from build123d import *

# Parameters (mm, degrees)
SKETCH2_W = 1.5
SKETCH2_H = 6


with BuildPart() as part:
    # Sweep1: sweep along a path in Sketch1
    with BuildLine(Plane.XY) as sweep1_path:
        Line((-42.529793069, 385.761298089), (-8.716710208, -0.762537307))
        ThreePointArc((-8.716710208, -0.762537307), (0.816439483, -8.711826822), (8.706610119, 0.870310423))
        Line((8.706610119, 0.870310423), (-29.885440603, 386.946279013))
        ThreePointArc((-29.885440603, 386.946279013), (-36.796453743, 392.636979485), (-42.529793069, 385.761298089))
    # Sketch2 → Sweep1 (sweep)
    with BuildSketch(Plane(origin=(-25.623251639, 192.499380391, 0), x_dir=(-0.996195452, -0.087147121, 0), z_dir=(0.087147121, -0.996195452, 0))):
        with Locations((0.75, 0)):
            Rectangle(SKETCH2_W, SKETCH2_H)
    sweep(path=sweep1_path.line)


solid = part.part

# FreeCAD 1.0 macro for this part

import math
import FreeCAD as App
import Part
import Sketcher


def add_polygon(sketch, points):
    """Adds a closed chain of lines whose ends are joined by coincident constraints."""
    first, n = sketch.GeometryCount, len(points)
    for a, b in zip(points, points[1:] + points[:1]):
        sketch.addGeometry(Part.LineSegment(App.Vector(*a, 0), App.Vector(*b, 0)), False)
    for i in range(n):
        sketch.addConstraint(Sketcher.Constraint("Coincident", first + i, 2, first + (i + 1) % n, 1))

doc = App.newDocument("Part")
body = doc.addObject("PartDesign::Body", "Body")

# Sketch on an angled plane
sketch1 = body.newObject("Sketcher::SketchObject", "Sketch")
sketch1.Placement = App.Placement(App.Vector(-25.623252, 192.49938, 0), App.Rotation(App.Vector(-0.996195452, -0.087147121, 0), App.Vector(0, 0, -0.999999999), App.Vector(0.087147121, -0.996195452, 0), "ZXY"))
add_polygon(sketch1, [(0, 3), (0, -3), (1.5, -3), (1.5, 3)])  # lines 0-3
sketch1.addConstraint([
    Sketcher.Constraint("Vertical", 0),
    Sketcher.Constraint("Horizontal", 1),
    Sketcher.Constraint("Vertical", 2),
    Sketcher.Constraint("Horizontal", 3),
    Sketcher.Constraint("Symmetric", 0, 2, 3, 2, -1, 1),
    Sketcher.Constraint("DistanceY", 0, 2, 0, 1, 6.0),
    Sketcher.Constraint("DistanceX", 1, 1, 1, 2, 1.5),
])

# Sketch on XY plane
sketch2 = body.newObject("Sketcher::SketchObject", "Sketch001")
sketch2.AttachmentSupport = (doc.getObject("XY_Plane"), [""])
sketch2.MapMode = "FlatFace"
sketch2.addGeometry([
    Part.LineSegment(App.Vector(-42.529793, 385.761298, 0), App.Vector(-8.71671, -0.762537, 0)),
    Part.ArcOfCircle(Part.Circle(App.Vector(0, 0, 0), App.Vector(0, 0, 1), 8.75), math.radians(-175.000496), math.radians(5.708309)),
    Part.LineSegment(App.Vector(8.70661, 0.87031, 0), App.Vector(-29.885441, 386.946279, 0)),
    Part.ArcOfCircle(Part.Circle(App.Vector(-36.203952, 386.314682, 0), App.Vector(0, 0, 1), 6.35), math.radians(5.708309), math.radians(184.999504)),
], False)
sketch2.addConstraint([
    Sketcher.Constraint("Tangent", 0, 2, 1, 1),
    Sketcher.Constraint("Tangent", 1, 2, 2, 1),
    Sketcher.Constraint("Tangent", 2, 2, 3, 1),
    Sketcher.Constraint("Tangent", 3, 2, 0, 1),
    Sketcher.Constraint("Coincident", 1, 3, -1, 1),
    Sketcher.Constraint("Radius", 1, 8.75),
    Sketcher.Constraint("Radius", 3, 6.35),
    Sketcher.Constraint("Distance", 0, 388.0),
    Sketcher.Constraint("DistanceY", -1, 1, 3, 2, 385.761298),
])
doc.recompute()

additivepipe = body.newObject("PartDesign::AdditivePipe", "AdditivePipe")
additivepipe.Profile = sketch1
additivepipe.Spine = (sketch2, ["Edge1", "Edge2", "Edge3", "Edge4"])

doc.recompute()
